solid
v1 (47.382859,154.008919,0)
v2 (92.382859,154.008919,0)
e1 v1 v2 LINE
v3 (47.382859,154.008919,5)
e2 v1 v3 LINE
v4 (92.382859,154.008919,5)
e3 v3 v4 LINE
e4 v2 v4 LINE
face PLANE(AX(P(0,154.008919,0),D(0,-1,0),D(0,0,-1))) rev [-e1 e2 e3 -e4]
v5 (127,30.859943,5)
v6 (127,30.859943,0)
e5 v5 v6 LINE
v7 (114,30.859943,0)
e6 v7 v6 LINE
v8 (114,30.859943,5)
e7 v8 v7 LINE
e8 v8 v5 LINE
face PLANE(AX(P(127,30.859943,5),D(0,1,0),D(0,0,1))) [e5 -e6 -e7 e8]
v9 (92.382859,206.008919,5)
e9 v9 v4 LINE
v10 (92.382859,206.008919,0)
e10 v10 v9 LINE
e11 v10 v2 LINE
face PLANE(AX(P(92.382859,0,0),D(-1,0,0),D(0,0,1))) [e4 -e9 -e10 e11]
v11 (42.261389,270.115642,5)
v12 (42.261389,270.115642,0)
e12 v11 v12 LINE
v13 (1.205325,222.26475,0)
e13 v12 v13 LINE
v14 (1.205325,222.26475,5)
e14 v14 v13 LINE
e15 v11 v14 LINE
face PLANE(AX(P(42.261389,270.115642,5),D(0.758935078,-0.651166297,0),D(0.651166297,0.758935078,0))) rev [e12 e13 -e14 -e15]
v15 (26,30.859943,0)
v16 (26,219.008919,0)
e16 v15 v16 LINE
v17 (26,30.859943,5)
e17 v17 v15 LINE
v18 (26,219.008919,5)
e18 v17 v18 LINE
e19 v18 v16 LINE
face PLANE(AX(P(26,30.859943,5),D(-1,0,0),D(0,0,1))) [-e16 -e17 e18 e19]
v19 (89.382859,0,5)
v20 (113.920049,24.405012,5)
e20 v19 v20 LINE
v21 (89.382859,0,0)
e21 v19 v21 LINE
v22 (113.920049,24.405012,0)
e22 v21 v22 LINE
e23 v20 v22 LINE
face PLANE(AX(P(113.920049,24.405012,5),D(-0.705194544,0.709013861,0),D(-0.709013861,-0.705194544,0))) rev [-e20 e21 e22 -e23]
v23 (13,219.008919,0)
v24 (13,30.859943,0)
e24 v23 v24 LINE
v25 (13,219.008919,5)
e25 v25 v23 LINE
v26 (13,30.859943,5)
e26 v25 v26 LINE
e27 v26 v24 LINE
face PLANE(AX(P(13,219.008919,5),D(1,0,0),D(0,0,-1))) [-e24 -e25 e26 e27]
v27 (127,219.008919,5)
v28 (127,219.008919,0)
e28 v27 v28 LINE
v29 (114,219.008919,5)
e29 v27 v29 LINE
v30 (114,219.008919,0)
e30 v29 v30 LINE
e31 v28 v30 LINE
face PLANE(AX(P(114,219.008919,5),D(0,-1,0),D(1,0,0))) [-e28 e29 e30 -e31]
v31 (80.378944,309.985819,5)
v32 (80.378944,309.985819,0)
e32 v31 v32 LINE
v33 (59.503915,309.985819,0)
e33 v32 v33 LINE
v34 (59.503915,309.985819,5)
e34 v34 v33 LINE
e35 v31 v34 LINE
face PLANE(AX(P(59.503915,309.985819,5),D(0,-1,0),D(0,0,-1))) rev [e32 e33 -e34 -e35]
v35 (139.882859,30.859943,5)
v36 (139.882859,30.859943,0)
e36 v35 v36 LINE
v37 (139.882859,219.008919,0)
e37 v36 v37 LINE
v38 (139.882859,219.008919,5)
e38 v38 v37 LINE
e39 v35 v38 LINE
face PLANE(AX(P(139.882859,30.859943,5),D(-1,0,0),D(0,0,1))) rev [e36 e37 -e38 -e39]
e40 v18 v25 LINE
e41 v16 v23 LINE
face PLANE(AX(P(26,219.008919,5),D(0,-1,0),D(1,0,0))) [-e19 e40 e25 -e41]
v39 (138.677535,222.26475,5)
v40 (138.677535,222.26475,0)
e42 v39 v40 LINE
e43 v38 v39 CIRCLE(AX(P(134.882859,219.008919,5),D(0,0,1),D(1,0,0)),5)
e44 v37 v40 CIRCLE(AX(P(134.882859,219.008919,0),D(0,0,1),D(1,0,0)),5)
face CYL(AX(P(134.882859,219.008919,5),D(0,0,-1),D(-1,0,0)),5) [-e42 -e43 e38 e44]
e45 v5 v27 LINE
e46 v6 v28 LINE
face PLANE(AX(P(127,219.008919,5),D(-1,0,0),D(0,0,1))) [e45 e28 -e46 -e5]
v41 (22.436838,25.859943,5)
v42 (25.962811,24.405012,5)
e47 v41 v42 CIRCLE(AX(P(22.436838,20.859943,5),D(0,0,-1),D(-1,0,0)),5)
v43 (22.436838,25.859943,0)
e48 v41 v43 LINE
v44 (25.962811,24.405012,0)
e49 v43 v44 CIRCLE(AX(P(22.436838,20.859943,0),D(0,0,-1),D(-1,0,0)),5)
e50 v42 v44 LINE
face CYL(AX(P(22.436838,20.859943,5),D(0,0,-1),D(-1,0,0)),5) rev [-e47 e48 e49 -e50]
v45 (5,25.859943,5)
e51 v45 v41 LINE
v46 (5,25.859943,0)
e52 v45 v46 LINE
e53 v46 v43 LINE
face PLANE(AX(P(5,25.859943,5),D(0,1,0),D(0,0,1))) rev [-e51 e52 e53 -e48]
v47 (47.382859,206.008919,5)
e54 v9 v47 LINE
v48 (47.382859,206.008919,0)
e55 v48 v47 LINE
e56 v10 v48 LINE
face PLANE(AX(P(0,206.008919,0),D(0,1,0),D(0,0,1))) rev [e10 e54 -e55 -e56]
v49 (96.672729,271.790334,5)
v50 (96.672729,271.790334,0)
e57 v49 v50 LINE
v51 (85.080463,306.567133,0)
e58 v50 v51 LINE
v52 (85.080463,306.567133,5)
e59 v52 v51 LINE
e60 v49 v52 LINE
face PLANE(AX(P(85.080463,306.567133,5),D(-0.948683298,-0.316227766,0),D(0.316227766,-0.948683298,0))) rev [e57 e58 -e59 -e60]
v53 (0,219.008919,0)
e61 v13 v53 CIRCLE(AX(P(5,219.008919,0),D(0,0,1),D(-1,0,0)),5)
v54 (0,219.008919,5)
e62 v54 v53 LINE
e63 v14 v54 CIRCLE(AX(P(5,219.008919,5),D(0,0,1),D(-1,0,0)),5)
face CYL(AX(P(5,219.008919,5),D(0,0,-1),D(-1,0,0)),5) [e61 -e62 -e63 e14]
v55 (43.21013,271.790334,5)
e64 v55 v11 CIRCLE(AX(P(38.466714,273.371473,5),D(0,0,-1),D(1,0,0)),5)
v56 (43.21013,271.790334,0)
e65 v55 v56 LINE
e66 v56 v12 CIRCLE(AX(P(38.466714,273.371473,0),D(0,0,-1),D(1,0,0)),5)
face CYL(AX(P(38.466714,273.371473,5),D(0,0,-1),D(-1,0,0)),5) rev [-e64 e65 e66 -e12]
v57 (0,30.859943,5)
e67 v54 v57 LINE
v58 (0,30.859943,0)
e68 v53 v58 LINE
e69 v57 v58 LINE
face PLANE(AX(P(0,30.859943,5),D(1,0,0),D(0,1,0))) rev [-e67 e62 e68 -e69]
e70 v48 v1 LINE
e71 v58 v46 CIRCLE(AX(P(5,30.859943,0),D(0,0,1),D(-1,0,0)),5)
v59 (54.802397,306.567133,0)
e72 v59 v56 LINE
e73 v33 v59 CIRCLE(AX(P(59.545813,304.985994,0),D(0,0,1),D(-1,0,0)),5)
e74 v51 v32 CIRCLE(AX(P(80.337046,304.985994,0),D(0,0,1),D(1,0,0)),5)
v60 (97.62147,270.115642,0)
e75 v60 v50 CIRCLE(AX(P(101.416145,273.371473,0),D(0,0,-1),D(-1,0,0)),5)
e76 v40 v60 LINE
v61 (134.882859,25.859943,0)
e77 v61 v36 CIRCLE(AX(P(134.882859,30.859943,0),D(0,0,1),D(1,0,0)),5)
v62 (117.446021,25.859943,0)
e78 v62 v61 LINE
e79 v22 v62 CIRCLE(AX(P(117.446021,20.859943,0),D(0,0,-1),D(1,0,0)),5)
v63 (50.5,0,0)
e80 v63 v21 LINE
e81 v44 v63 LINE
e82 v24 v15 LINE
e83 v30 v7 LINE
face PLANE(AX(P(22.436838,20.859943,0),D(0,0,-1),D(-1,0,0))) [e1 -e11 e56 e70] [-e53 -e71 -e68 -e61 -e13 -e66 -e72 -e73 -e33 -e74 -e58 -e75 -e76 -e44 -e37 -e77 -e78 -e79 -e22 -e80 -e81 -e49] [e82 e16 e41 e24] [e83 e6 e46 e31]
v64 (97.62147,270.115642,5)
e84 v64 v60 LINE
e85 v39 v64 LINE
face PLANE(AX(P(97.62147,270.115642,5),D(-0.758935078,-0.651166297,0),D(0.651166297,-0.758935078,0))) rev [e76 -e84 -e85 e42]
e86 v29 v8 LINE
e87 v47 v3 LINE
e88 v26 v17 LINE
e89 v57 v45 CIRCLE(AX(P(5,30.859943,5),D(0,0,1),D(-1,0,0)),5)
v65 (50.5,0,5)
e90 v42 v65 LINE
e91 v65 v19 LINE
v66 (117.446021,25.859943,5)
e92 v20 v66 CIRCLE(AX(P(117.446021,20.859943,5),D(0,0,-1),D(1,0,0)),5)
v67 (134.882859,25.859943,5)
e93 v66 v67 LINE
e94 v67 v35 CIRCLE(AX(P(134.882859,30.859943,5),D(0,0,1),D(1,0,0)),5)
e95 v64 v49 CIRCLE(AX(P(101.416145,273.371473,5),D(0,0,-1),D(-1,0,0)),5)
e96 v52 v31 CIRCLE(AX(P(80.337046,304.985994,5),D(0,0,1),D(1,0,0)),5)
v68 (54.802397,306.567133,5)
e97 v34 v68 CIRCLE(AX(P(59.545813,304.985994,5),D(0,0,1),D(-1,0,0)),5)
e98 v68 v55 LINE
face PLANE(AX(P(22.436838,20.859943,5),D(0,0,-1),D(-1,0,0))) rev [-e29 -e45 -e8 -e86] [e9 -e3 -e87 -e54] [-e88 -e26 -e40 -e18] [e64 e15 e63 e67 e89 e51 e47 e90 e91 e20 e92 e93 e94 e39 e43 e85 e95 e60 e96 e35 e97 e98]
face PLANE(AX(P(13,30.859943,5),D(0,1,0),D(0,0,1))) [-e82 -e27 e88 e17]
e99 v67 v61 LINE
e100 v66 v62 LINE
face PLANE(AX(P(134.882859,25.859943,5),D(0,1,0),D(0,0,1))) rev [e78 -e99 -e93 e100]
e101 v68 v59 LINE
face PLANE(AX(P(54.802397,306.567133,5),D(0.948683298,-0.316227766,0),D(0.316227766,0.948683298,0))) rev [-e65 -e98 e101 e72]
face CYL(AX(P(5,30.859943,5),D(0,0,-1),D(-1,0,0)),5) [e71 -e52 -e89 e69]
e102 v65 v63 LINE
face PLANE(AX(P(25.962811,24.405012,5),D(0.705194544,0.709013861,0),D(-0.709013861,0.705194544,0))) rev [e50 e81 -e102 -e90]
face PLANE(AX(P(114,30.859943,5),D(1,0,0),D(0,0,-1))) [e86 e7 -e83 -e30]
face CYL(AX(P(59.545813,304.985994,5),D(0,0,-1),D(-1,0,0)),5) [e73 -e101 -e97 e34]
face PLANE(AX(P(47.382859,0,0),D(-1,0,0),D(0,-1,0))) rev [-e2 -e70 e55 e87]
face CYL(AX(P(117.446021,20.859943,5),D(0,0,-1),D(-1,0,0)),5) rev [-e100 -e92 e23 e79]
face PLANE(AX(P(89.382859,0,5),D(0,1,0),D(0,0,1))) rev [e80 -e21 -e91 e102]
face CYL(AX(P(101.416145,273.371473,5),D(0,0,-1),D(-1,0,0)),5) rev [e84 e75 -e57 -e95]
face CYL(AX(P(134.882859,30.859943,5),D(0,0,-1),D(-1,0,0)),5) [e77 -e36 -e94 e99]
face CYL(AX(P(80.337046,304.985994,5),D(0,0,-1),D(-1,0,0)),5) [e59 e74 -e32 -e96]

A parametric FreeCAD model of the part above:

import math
import FreeCAD as App
import Part
import Sketcher

V = App.Vector


def add_polygon(sketch, points):
    """Adds a closed chain of lines whose ends are joined by coincident constraints."""
    first, n = sketch.GeometryCount, len(points)
    for a, b in zip(points, points[1:] + points[:1]):
        sketch.addGeometry(Part.LineSegment(App.Vector(*a, 0), App.Vector(*b, 0)), False)
    for i in range(n):
        sketch.addConstraint(Sketcher.Constraint("Coincident", first + i, 2, first + (i + 1) % n, 1))

doc = App.newDocument("Part")
body = doc.addObject("PartDesign::Body", "Body")

sketch1 = body.newObject("Sketcher::SketchObject", "Sketch")
sketch1.AttachmentSupport = (doc.getObject("XY_Plane"), [""])
sketch1.MapMode = "FlatFace"
sketch1.addGeometry(Part.LineSegment(V(0, 219.008919, 0), V(0, 30.859943, 0)), False)
sketch1.addGeometry(Part.ArcOfCircle(Part.Circle(V(5, 30.859943, 0), V(0, 0, 1), 5), math.radians(180), math.radians(270)), False)
sketch1.addGeometry(Part.LineSegment(V(5, 25.859943, 0), V(22.436838, 25.859943, 0)), False)
sketch1.addGeometry(Part.ArcOfCircle(Part.Circle(V(22.436838, 20.859943, 0), V(0, 0, 1), 5), math.radians(45.154737), math.radians(90)), False)
sketch1.addGeometry(Part.LineSegment(V(25.962811, 24.405012, 0), V(50.5, 0, 0)), False)
sketch1.addGeometry(Part.LineSegment(V(50.5, 0, 0), V(89.382859, 0, 0)), False)
sketch1.addGeometry(Part.LineSegment(V(89.382859, 0, 0), V(113.920049, 24.405012, 0)), False)
sketch1.addGeometry(Part.ArcOfCircle(Part.Circle(V(117.446021, 20.859943, 0), V(0, 0, 1), 5), math.radians(90), math.radians(134.845263)), False)
sketch1.addGeometry(Part.LineSegment(V(117.446021, 25.859943, 0), V(134.882859, 25.859943, 0)), False)
sketch1.addGeometry(Part.ArcOfCircle(Part.Circle(V(134.882859, 30.859943, 0), V(0, 0, 1), 5), math.radians(-90), math.radians(0)), False)
sketch1.addGeometry(Part.LineSegment(V(139.882859, 30.859943, 0), V(139.882859, 219.008919, 0)), False)
sketch1.addGeometry(Part.ArcOfCircle(Part.Circle(V(134.882859, 219.008919, 0), V(0, 0, 1), 5), math.radians(0), math.radians(40.629594)), False)
sketch1.addGeometry(Part.LineSegment(V(138.677535, 222.26475, 0), V(97.62147, 270.115642, 0)), False)
sketch1.addGeometry(Part.ArcOfCircle(Part.Circle(V(101.416145, 273.371473, 0), V(0, 0, 1), 5), math.radians(-161.565051), math.radians(-139.370406)), False)
sketch1.addGeometry(Part.LineSegment(V(96.672729, 271.790334, 0), V(85.080463, 306.567133, 0)), False)
sketch1.addGeometry(Part.ArcOfCircle(Part.Circle(V(80.337046, 304.985994, 0), V(0, 0, 1), 5), math.radians(18.434949), math.radians(89.519876)), False)
sketch1.addGeometry(Part.LineSegment(V(80.378944, 309.985819, 0), V(59.503915, 309.985819, 0)), False)
sketch1.addGeometry(Part.ArcOfCircle(Part.Circle(V(59.545813, 304.985994, 0), V(0, 0, 1), 5), math.radians(90.480124), math.radians(161.565051)), False)
sketch1.addGeometry(Part.LineSegment(V(54.802397, 306.567133, 0), V(43.21013, 271.790334, 0)), False)
sketch1.addGeometry(Part.ArcOfCircle(Part.Circle(V(38.466714, 273.371473, 0), V(0, 0, 1), 5), math.radians(-40.629594), math.radians(-18.434949)), False)
sketch1.addGeometry(Part.LineSegment(V(42.261389, 270.115642, 0), V(1.205325, 222.26475, 0)), False)
sketch1.addGeometry(Part.ArcOfCircle(Part.Circle(V(5, 219.008919, 0), V(0, 0, 1), 5), math.radians(139.370406), math.radians(180)), False)
add_polygon(sketch1, [(114, 30.859943), (114, 219.008919), (127, 219.008919), (127, 30.859943)])
add_polygon(sketch1, [(13, 30.859943), (13, 219.008919), (26, 219.008919), (26, 30.859943)])
sketch1.addConstraint([
    Sketcher.Constraint("Coincident", 0, 2, 1, 1),
    Sketcher.Constraint("Coincident", 1, 2, 2, 1),
    Sketcher.Constraint("Coincident", 2, 2, 3, 2),
    Sketcher.Constraint("Coincident", 3, 1, 4, 1),
    Sketcher.Constraint("Coincident", 4, 2, 5, 1),
    Sketcher.Constraint("Coincident", 5, 2, 6, 1),
    Sketcher.Constraint("Coincident", 6, 2, 7, 2),
    Sketcher.Constraint("Coincident", 7, 1, 8, 1),
    Sketcher.Constraint("Coincident", 8, 2, 9, 1),
    Sketcher.Constraint("Coincident", 9, 2, 10, 1),
    Sketcher.Constraint("Coincident", 10, 2, 11, 1),
    Sketcher.Constraint("Coincident", 11, 2, 12, 1),
    Sketcher.Constraint("Coincident", 12, 2, 13, 2),
    Sketcher.Constraint("Coincident", 13, 1, 14, 1),
    Sketcher.Constraint("Coincident", 14, 2, 15, 1),
    Sketcher.Constraint("Coincident", 15, 2, 16, 1),
    Sketcher.Constraint("Coincident", 16, 2, 17, 1),
    Sketcher.Constraint("Coincident", 17, 2, 18, 1),
    Sketcher.Constraint("Coincident", 18, 2, 19, 2),
    Sketcher.Constraint("Coincident", 19, 1, 20, 1),
    Sketcher.Constraint("Coincident", 20, 2, 21, 1),
    Sketcher.Constraint("Coincident", 21, 2, 0, 1),
    Sketcher.Constraint("Vertical", 0),
    Sketcher.Constraint("Horizontal", 2),
    Sketcher.Constraint("Horizontal", 5),
    Sketcher.Constraint("Horizontal", 8),
    Sketcher.Constraint("Vertical", 10),
    Sketcher.Constraint("Horizontal", 16),
    Sketcher.Constraint("Vertical", 22),
    Sketcher.Constraint("Horizontal", 23),
    Sketcher.Constraint("Vertical", 24),
    Sketcher.Constraint("Horizontal", 25),
    Sketcher.Constraint("Vertical", 26),
    Sketcher.Constraint("Horizontal", 27),
    Sketcher.Constraint("Vertical", 28),
    Sketcher.Constraint("Horizontal", 29),
    Sketcher.Constraint("PointOnObject", 0, 2, -2),
    Sketcher.Constraint("PointOnObject", 4, 2, -1),
    Sketcher.Constraint("Radius", 1, 5.0),
    Sketcher.Constraint("Radius", 3, 5.0),
    Sketcher.Constraint("Radius", 7, 5.0),
    Sketcher.Constraint("Radius", 9, 5.0),
    Sketcher.Constraint("Radius", 11, 5.0),
    Sketcher.Constraint("Radius", 13, 5.0),
    Sketcher.Constraint("Radius", 15, 5.0),
    Sketcher.Constraint("Radius", 17, 5.0),
    Sketcher.Constraint("Radius", 19, 5.0),
    Sketcher.Constraint("Radius", 21, 5.0),
    Sketcher.Constraint("DistanceX", 23, 1, 23, 2, 13.0),
    Sketcher.Constraint("DistanceX", 27, 1, 27, 2, 13.0),
    Sketcher.Constraint("DistanceX", -1, 1, 1, 2, 5.0),
    Sketcher.Constraint("DistanceX", -1, 1, 22, 2, 114.0),
    Sketcher.Constraint("DistanceX", -1, 1, 26, 2, 13.0),
    Sketcher.Constraint("DistanceY", 7, 3, 1, 3, 10.0),
    Sketcher.Constraint("DistanceY", 3, 3, 0, 2, 10.0),
    Sketcher.Constraint("DistanceX", 8, 2, 9, 2, 5.0),
    Sketcher.Constraint("DistanceY", 8, 2, 9, 2, 5.0),
    Sketcher.Constraint("DistanceY", 8, 2, 24, 2, 5.0),
    Sketcher.Constraint("DistanceY", 2, 2, 28, 2, 5.0),
    Sketcher.Constraint("DistanceX", -1, 1, 4, 2, 50.5),
    Sketcher.Constraint("DistanceX", 5, 2, 9, 3, 45.5),
    Sketcher.Constraint("DistanceX", 5, 1, 5, 2, 38.882859),
    Sketcher.Constraint("DistanceX", 16, 2, 16, 1, 20.875029),
    Sketcher.Constraint("DistanceX", 15, 3, 13, 3, 21.079099),
    Sketcher.Constraint("DistanceX", 19, 3, 17, 3, 21.079099),
    Sketcher.Constraint("DistanceY", 13, 1, 14, 2, 34.776799),
    Sketcher.Constraint("DistanceX", 15, 3, 15, 2, 0.041898),
    Sketcher.Constraint("DistanceX", 16, 2, 17, 3, 0.041898),
    Sketcher.Constraint("DistanceY", 18, 2, 17, 2, 34.776799),
    Sketcher.Constraint("Distance", 4, 34.607489),
    Sketcher.Constraint("Distance", 6, 34.607489),
    Sketcher.Constraint("DistanceX", 2, 1, 2, 2, 17.436838),
    Sketcher.Constraint("DistanceX", 8, 1, 8, 2, 17.436838),
    Sketcher.Constraint("DistanceY", 0, 2, 0, 1, 188.148976),
    Sketcher.Constraint("DistanceY", 10, 1, 10, 2, 188.148976),
    Sketcher.Constraint("DistanceY", 22, 1, 22, 2, 188.148976),
    Sketcher.Constraint("DistanceY", 26, 1, 26, 2, 188.148976),
    Sketcher.Constraint("DistanceX", -1, 1, 7, 3, 117.446021),
    Sketcher.Constraint("DistanceY", -1, 1, 11, 3, 219.008919),
    Sketcher.Constraint("DistanceY", -1, 1, 21, 3, 219.008919),
    Sketcher.Constraint("DistanceX", -1, 1, 3, 1, 25.962811),
    Sketcher.Constraint("DistanceX", -1, 1, 6, 2, 113.920049),
    Sketcher.Constraint("DistanceY", -1, 1, 11, 2, 222.26475),
    Sketcher.Constraint("DistanceX", -1, 1, 12, 2, 97.62147),
    Sketcher.Constraint("DistanceY", -1, 1, 12, 2, 270.115642),
    Sketcher.Constraint("DistanceX", -1, 1, 13, 1, 96.672729),
    Sketcher.Constraint("DistanceY", -1, 1, 15, 2, 309.985819),
    Sketcher.Constraint("DistanceX", -1, 1, 18, 2, 43.21013),
    Sketcher.Constraint("DistanceX", -1, 1, 19, 1, 42.261389),
    Sketcher.Constraint("DistanceY", -1, 1, 19, 1, 270.115642),
    Sketcher.Constraint("DistanceY", -1, 1, 20, 2, 222.26475),
    Sketcher.Constraint("DistanceY", 9, 3, 13, 3, 242.51153),
])
pad1 = body.newObject("PartDesign::Pad", "Pad")
pad1.Profile = sketch1
pad1.Length = 5

sketch2 = body.newObject("Sketcher::SketchObject", "Sketch001")
sketch2.AttachmentSupport = (doc.getObject("XY_Plane"), [""])
sketch2.MapMode = "FlatFace"
sketch2.AttachmentOffset = App.Placement(V(0, 0, 5), App.Rotation())
add_polygon(sketch2, [(47, 206), (47, 154), (92, 154), (92, 206)])
sketch2.addConstraint([
    Sketcher.Constraint("Vertical", 0),
    Sketcher.Constraint("Horizontal", 1),
    Sketcher.Constraint("Vertical", 2),
    Sketcher.Constraint("Horizontal", 3),
    Sketcher.Constraint("DistanceX", 1, 1, 1, 2, 45.0),
    Sketcher.Constraint("DistanceY", 0, 2, 0, 1, 52.0),
    Sketcher.Constraint("DistanceX", -1, 1, 0, 2, 47.382859),
    Sketcher.Constraint("DistanceY", -1, 1, 0, 2, 154.008919),
])
pocket1 = body.newObject("PartDesign::Pocket", "Pocket")
pocket1.Profile = sketch2
pocket1.Type = "ThroughAll"

doc.recompute()
